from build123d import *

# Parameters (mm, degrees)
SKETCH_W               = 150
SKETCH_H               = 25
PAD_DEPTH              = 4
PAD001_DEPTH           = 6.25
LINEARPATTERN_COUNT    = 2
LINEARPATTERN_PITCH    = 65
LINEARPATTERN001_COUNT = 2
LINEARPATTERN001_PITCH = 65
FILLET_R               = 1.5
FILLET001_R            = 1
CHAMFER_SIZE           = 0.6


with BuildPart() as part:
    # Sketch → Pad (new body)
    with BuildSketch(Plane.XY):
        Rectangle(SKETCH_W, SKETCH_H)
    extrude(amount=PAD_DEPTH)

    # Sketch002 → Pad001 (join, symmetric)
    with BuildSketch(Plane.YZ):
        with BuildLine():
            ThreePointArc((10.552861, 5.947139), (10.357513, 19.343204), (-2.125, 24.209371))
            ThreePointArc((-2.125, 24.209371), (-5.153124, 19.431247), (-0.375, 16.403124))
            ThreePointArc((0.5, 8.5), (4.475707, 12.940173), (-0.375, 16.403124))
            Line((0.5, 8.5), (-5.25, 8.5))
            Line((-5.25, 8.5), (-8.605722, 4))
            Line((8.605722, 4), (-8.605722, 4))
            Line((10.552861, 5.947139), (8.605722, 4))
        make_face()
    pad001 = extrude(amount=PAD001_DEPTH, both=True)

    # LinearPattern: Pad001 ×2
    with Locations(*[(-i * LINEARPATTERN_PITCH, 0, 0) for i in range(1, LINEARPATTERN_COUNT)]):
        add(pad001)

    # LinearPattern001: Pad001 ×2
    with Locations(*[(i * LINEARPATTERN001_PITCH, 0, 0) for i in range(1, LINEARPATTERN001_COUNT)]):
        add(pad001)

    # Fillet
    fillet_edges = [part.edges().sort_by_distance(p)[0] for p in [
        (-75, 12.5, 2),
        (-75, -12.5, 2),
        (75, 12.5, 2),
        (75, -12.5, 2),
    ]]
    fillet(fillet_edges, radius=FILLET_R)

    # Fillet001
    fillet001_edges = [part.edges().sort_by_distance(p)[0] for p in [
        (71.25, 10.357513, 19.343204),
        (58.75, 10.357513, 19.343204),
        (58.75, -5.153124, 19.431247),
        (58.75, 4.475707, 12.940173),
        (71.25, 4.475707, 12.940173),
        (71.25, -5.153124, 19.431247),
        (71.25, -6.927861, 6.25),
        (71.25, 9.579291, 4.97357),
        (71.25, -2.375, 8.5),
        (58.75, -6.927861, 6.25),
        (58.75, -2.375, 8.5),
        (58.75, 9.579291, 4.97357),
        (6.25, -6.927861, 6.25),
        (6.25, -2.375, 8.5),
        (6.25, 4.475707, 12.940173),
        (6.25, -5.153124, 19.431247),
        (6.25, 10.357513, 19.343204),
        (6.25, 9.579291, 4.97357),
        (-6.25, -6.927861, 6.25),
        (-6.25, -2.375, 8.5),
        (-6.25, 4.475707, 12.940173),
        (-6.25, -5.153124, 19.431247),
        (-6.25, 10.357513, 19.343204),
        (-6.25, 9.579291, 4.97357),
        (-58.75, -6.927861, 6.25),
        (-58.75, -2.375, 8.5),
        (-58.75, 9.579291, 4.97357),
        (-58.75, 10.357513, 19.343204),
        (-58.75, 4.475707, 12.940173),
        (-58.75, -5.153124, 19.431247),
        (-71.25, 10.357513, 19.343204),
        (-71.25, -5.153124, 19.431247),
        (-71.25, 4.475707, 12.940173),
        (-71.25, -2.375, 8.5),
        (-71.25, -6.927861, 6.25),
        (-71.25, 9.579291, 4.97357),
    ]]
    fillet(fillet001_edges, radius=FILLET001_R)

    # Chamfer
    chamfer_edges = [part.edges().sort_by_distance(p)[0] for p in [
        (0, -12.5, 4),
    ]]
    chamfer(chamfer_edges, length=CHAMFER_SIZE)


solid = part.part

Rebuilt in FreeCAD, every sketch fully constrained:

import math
import FreeCAD as App
import Part
import Sketcher
Q = App.Units.Quantity


def edges_at(feature, points):
    """Names of the edges that pass closest to the given points."""
    edges = feature.Shape.Edges
    near = lambda p: min(range(len(edges)), key=lambda i: edges[i].distToShape(Part.Vertex(*p))[0])
    return sorted({f"Edge{near(p) + 1}" for p in points})

doc = App.newDocument("Part")
params = doc.addObject("Spreadsheet::Sheet", "Params")
for row, (alias, value) in enumerate([
    ("sketch1_width", "150 mm"),
    ("sketch1_height", "25 mm"),
    ("pad1_length", "4 mm"),
    ("sketch2_radius", "12 mm"),
    ("sketch2_width", "5.75 mm"),
    ("pad2_length", "12.5 mm"),
    ("linearpattern_pitch", "65 mm"),
    ("linearpattern2_pitch", "65 mm"),
    ("fillet_radius", "1.5 mm"),
    ("fillet2_radius", "1 mm"),
    ("chamfer_size", "0.6 mm"),
], start=1):
    params.set(f"A{row}", alias)
    params.set(f"B{row}", "=" + value)
    params.setAlias(f"B{row}", alias)

body = doc.addObject("PartDesign::Body", "Body")

# Sketch on XY plane
sketch1 = body.newObject("Sketcher::SketchObject", "Sketch")
sketch1.AttachmentSupport = (doc.getObject("XY_Plane"), [""])
sketch1.MapMode = "FlatFace"
sketch1.addGeometry([
    Part.LineSegment(App.Vector(-75, 12.5, 0), App.Vector(-75, -12.5, 0)),
    Part.LineSegment(App.Vector(-75, -12.5, 0), App.Vector(75, -12.5, 0)),
    Part.LineSegment(App.Vector(75, -12.5, 0), App.Vector(75, 12.5, 0)),
    Part.LineSegment(App.Vector(75, 12.5, 0), App.Vector(-75, 12.5, 0)),
], False)
sketch1.addConstraint([
    Sketcher.Constraint("Coincident", 0, 2, 1, 1),
    Sketcher.Constraint("Coincident", 1, 2, 2, 1),
    Sketcher.Constraint("Coincident", 2, 2, 3, 1),
    Sketcher.Constraint("Coincident", 3, 2, 0, 1),
    Sketcher.Constraint("Vertical", 0),
    Sketcher.Constraint("Horizontal", 1),
    Sketcher.Constraint("Vertical", 2),
    Sketcher.Constraint("Horizontal", 3),
    Sketcher.Constraint("Symmetric", 0, 2, 2, 2, -1, 1),
    Sketcher.Constraint("DistanceX", 1, 1, 1, 2, 150.0),
    Sketcher.Constraint("DistanceY", 0, 2, 0, 1, 25.0),
])
sketch1.setExpression("Constraints[9]", "Params.sketch1_width")
sketch1.setExpression("Constraints[10]", "Params.sketch1_height")
pad1 = body.newObject("PartDesign::Pad", "Pad")
pad1.Profile = sketch1
pad1.setExpression("Length", "Params.pad1_length")

# Sketch on YZ plane
sketch2 = body.newObject("Sketcher::SketchObject", "Sketch001")
sketch2.AttachmentSupport = (doc.getObject("YZ_Plane"), [""])
sketch2.MapMode = "FlatFace"
sketch2.addGeometry([
    Part.ArcOfCircle(Part.Circle(App.Vector(0.5, 12.5, 0), App.Vector(0, 0, 1), 12), math.radians(-33.097935), math.radians(102.635627)),  # 0
    Part.ArcOfCircle(Part.Circle(App.Vector(-1.250001, 20.306247, 0), App.Vector(0, 0, 1), 4), math.radians(102.635617), math.radians(282.635634)),  # 1
    Part.ArcOfCircle(Part.Circle(App.Vector(0.5, 12.5, 0), App.Vector(0, 0, 1), 4), math.radians(-89.999996), math.radians(102.63562)),  # 2
    Part.LineSegment(App.Vector(0.5, 8.5, 0), App.Vector(-5.25, 8.5, 0)),  # 3
    Part.LineSegment(App.Vector(-5.25, 8.5, 0), App.Vector(-8.605722, 4, 0)),  # 4
    Part.LineSegment(App.Vector(-8.605722, 4, 0), App.Vector(8.605722, 4, 0)),  # 5
    Part.LineSegment(App.Vector(8.605722, 4, 0), App.Vector(10.552861, 5.947139, 0)),  # 6
], False)
sketch2.addConstraint([
    Sketcher.Constraint("Tangent", 0, 2, 1, 1),
    Sketcher.Constraint("Tangent", 1, 2, 2, 2),
    Sketcher.Constraint("Tangent", 2, 1, 3, 1),
    Sketcher.Constraint("Coincident", 3, 2, 4, 1),
    Sketcher.Constraint("Coincident", 4, 2, 5, 1),
    Sketcher.Constraint("Coincident", 5, 2, 6, 1),
    Sketcher.Constraint("Coincident", 6, 2, 0, 1),
    Sketcher.Constraint("Horizontal", 3),
    Sketcher.Constraint("Horizontal", 5),
    Sketcher.Constraint("Coincident", 2, 3, 0, 3),
    Sketcher.Constraint("Equal", 1, 2),
    Sketcher.Constraint("Radius", 0, 12.0),
    Sketcher.Constraint("Angle", 6, Q("45 deg")),
    Sketcher.Constraint("DistanceY", -1, 1, 4, 2, 4.0),
    Sketcher.Constraint("DistanceX", 3, 2, 1, 3, 3.999999),
    Sketcher.Constraint("DistanceX", 3, 2, 3, 1, 5.75),
    Sketcher.Constraint("DistanceX", -1, 1, 0, 3, 0.5),
    Sketcher.Constraint("DistanceY", -1, 1, 0, 3, 12.5),
    Sketcher.Constraint("Distance", 6, 2.75367),
    Sketcher.Constraint("DistanceX", 5, 1, 5, 2, 17.211444),
])
sketch2.setExpression("Constraints[11]", "Params.sketch2_radius")
sketch2.setExpression("Constraints[15]", "Params.sketch2_width")
pad2 = body.newObject("PartDesign::Pad", "Pad001")
pad2.Profile = sketch2
pad2.setExpression("Length", "Params.pad2_length")
pad2.Midplane = True
doc.recompute()

linearpattern = body.newObject("PartDesign::LinearPattern", "LinearPattern")
linearpattern.Originals = [pad2]
linearpattern.Direction = (doc.getObject("X_Axis"), [""])
linearpattern.Mode = "offset"
linearpattern.setExpression("Offset", "Params.linearpattern_pitch")
linearpattern.Occurrences = 2
linearpattern.Reversed = True
body.Tip = linearpattern
doc.recompute()

linearpattern2 = body.newObject("PartDesign::LinearPattern", "LinearPattern001")
linearpattern2.Originals = [pad2]
linearpattern2.Direction = (doc.getObject("X_Axis"), [""])
linearpattern2.Mode = "offset"
linearpattern2.setExpression("Offset", "Params.linearpattern2_pitch")
linearpattern2.Occurrences = 2
body.Tip = linearpattern2
doc.recompute()

fillet = body.newObject("PartDesign::Fillet", "Fillet")
fillet.Base = (linearpattern2, edges_at(linearpattern2, [
    (-75, 12.5, 2),
    (-75, -12.5, 2),
    (75, 12.5, 2),
    (75, -12.5, 2),
]))
fillet.setExpression("Radius", "Params.fillet_radius")
doc.recompute()

fillet2 = body.newObject("PartDesign::Fillet", "Fillet001")
fillet2.Base = (fillet, edges_at(fillet, [
    (71.25, 10.358, 19.343),
    (58.75, 10.358, 19.343),
    (58.75, -5.153, 19.431),
    (58.75, 4.476, 12.94),
    (71.25, 4.476, 12.94),
    (71.25, -5.153, 19.431),
    (71.25, -6.928, 6.25),
    (71.25, 9.579, 4.974),
    (71.25, -2.375, 8.5),
    (58.75, -6.928, 6.25),
    (58.75, -2.375, 8.5),
    (58.75, 9.579, 4.974),
    (6.25, -6.928, 6.25),
    (6.25, -2.375, 8.5),
    (6.25, 4.476, 12.94),
    (6.25, -5.153, 19.431),
    (6.25, 10.358, 19.343),
    (6.25, 9.579, 4.974),
    (-6.25, -6.928, 6.25),
    (-6.25, -2.375, 8.5),
    (-6.25, 4.476, 12.94),
    (-6.25, -5.153, 19.431),
    (-6.25, 10.358, 19.343),
    (-6.25, 9.579, 4.974),
    (-58.75, -6.928, 6.25),
    (-58.75, -2.375, 8.5),
    (-58.75, 9.579, 4.974),
    (-58.75, 10.358, 19.343),
    (-58.75, 4.476, 12.94),
    (-58.75, -5.153, 19.431),
    (-71.25, 10.358, 19.343),
    (-71.25, -5.153, 19.431),
    (-71.25, 4.476, 12.94),
    (-71.25, -2.375, 8.5),
    (-71.25, -6.928, 6.25),
    (-71.25, 9.579, 4.974),
]))
fillet2.setExpression("Radius", "Params.fillet2_radius")
doc.recompute()

chamfer = body.newObject("PartDesign::Chamfer", "Chamfer")
chamfer.Base = (fillet2, edges_at(fillet2, [(0, -12.5, 4)]))
chamfer.setExpression("Size", "Params.chamfer_size")

doc.recompute()
